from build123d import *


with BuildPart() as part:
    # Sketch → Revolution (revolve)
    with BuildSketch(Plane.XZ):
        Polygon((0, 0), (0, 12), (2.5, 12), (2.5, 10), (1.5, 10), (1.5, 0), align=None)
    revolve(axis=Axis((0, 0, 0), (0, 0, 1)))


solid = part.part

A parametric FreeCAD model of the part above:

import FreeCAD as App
import Part
import Sketcher

V = App.Vector


def add_polygon(sketch, points):
    """Adds a closed chain of lines whose ends are joined by coincident constraints."""
    first, n = sketch.GeometryCount, len(points)
    for a, b in zip(points, points[1:] + points[:1]):
        sketch.addGeometry(Part.LineSegment(App.Vector(*a, 0), App.Vector(*b, 0)), False)
    for i in range(n):
        sketch.addConstraint(Sketcher.Constraint("Coincident", first + i, 2, first + (i + 1) % n, 1))

doc = App.newDocument("Part")
params = doc.addObject("Spreadsheet::Sheet", "Params")
for row, (alias, value) in enumerate([
    ("sketch1_width", "1 mm"),
    ("sketch1_height", "12 mm"),
    ("sketch1_height2", "10 mm"),
    ("sketch1_width2", "1.5 mm"),
    ("revolution_angle", "360 deg"),
], start=1):
    params.set(f"A{row}", alias)
    params.set(f"B{row}", "=" + value)
    params.setAlias(f"B{row}", alias)

body = doc.addObject("PartDesign::Body", "Body")

sketch1 = body.newObject("Sketcher::SketchObject", "Sketch")
sketch1.AttachmentSupport = (doc.getObject("XZ_Plane"), [""])
sketch1.MapMode = "FlatFace"
add_polygon(sketch1, [(0, 12), (0, 0), (1.5, 0), (1.5, 10), (2.5, 10), (2.5, 12)])
sketch1.addConstraint([
    Sketcher.Constraint("Vertical", 0),
    Sketcher.Constraint("Horizontal", 1),
    Sketcher.Constraint("Vertical", 2),
    Sketcher.Constraint("Horizontal", 3),
    Sketcher.Constraint("Vertical", 4),
    Sketcher.Constraint("Horizontal", 5),
    Sketcher.Constraint("Coincident", 0, 2, -1, 1),
    Sketcher.Constraint("DistanceX", 3, 1, 3, 2, 1.0),
    Sketcher.Constraint("DistanceY", 0, 2, 0, 1, 12.0),
    Sketcher.Constraint("DistanceY", 2, 1, 2, 2, 10.0),
    Sketcher.Constraint("DistanceX", 1, 1, 1, 2, 1.5),
])
sketch1.setExpression("Constraints[13]", "Params.sketch1_width")
sketch1.setExpression("Constraints[14]", "Params.sketch1_height")
sketch1.setExpression("Constraints[15]", "Params.sketch1_height2")
sketch1.setExpression("Constraints[16]", "Params.sketch1_width2")
revolution = body.newObject("PartDesign::Revolution", "Revolution")
revolution.Profile = sketch1
revolution.ReferenceAxis = (sketch1, ["V_Axis"])
revolution.setExpression("Angle", "Params.revolution_angle")

doc.recompute()
